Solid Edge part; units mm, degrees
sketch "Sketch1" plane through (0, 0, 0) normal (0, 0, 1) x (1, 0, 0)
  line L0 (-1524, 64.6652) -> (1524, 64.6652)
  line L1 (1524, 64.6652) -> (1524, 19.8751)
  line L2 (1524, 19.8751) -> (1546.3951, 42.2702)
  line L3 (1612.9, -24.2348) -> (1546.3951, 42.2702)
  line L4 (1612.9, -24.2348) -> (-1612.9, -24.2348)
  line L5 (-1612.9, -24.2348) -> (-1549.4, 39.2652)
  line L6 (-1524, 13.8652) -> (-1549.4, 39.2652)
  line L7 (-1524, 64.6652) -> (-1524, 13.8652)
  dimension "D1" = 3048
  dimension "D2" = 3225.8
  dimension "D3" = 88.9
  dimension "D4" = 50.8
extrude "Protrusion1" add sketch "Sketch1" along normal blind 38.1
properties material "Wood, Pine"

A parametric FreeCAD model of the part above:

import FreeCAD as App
import Part
import Sketcher

V = App.Vector
Q = App.Units.Quantity

doc = App.newDocument("Part")
body = doc.addObject("PartDesign::Body", "Body")

# Sketch on XY plane
sketch1 = body.newObject("Sketcher::SketchObject", "Sketch")
sketch1.AttachmentSupport = (doc.getObject("XY_Plane"), [""])
sketch1.MapMode = "FlatFace"
sketch1.addGeometry(Part.LineSegment(V(1524, 65, 0), V(-1524, 65, 0)), False)
sketch1.addGeometry(Part.LineSegment(V(-1524, 65, 0), V(-1524, 14, 0)), False)
sketch1.addGeometry(Part.LineSegment(V(-1524, 14, 0), V(-1549, 39, 0)), False)
sketch1.addGeometry(Part.LineSegment(V(-1549, 39, 0), V(-1613, -24, 0)), False)
sketch1.addGeometry(Part.LineSegment(V(-1613, -24, 0), V(1613, -24, 0)), False)
sketch1.addGeometry(Part.LineSegment(V(1613, -24, 0), V(1546, 42, 0)), False)
sketch1.addGeometry(Part.LineSegment(V(1546, 42, 0), V(1524, 20, 0)), False)
sketch1.addGeometry(Part.LineSegment(V(1524, 20, 0), V(1524, 65, 0)), False)
sketch1.addConstraint(Sketcher.Constraint("Coincident", 0, 2, 1, 1))
sketch1.addConstraint(Sketcher.Constraint("Coincident", 1, 2, 2, 1))
sketch1.addConstraint(Sketcher.Constraint("Coincident", 2, 2, 3, 1))
sketch1.addConstraint(Sketcher.Constraint("Coincident", 3, 2, 4, 1))
sketch1.addConstraint(Sketcher.Constraint("Coincident", 4, 2, 5, 1))
sketch1.addConstraint(Sketcher.Constraint("Coincident", 5, 2, 6, 1))
sketch1.addConstraint(Sketcher.Constraint("Coincident", 6, 2, 7, 1))
sketch1.addConstraint(Sketcher.Constraint("Coincident", 7, 2, 0, 1))
sketch1.addConstraint(Sketcher.Constraint("Horizontal", 0))
sketch1.addConstraint(Sketcher.Constraint("Vertical", 1))
sketch1.addConstraint(Sketcher.Constraint("Horizontal", 4))
sketch1.addConstraint(Sketcher.Constraint("Vertical", 7))
sketch1.addConstraint(Sketcher.Constraint("Perpendicular", 2, 3))
sketch1.addConstraint(Sketcher.Constraint("Perpendicular", 3, 5))
sketch1.addConstraint(Sketcher.Constraint("Perpendicular", 5, 6))
sketch1.addConstraint(Sketcher.Constraint("DistanceX", 0, 2, -1, 1, Q("60 in")))
sketch1.addConstraint(Sketcher.Constraint("DistanceX", -1, 1, 6, 2, Q("60 in")))
sketch1.addConstraint(Sketcher.Constraint("DistanceX", 3, 2, -1, 1, Q("63.5 in")))
sketch1.addConstraint(Sketcher.Constraint("DistanceX", -1, 1, 4, 2, Q("63.5 in")))
sketch1.addConstraint(Sketcher.Constraint("DistanceY", 1, 2, 1, 1, Q("2 in")))
sketch1.addConstraint(Sketcher.Constraint("DistanceX", 2, 2, -1, 1, Q("61 in")))
sketch1.addConstraint(Sketcher.Constraint("Angle", 2, Q("135 deg")))
sketch1.addConstraint(Sketcher.Constraint("DistanceY", 7, 1, 7, 2, Q("1.7634 in")))
sketch1.addConstraint(Sketcher.Constraint("DistanceY", -1, 1, 0, 2, Q("64.6652 mm")))
pad1 = body.newObject("PartDesign::Pad", "Pad")
pad1.Profile = sketch1
pad1.Length = Q("1.5 in")

doc.recompute()
